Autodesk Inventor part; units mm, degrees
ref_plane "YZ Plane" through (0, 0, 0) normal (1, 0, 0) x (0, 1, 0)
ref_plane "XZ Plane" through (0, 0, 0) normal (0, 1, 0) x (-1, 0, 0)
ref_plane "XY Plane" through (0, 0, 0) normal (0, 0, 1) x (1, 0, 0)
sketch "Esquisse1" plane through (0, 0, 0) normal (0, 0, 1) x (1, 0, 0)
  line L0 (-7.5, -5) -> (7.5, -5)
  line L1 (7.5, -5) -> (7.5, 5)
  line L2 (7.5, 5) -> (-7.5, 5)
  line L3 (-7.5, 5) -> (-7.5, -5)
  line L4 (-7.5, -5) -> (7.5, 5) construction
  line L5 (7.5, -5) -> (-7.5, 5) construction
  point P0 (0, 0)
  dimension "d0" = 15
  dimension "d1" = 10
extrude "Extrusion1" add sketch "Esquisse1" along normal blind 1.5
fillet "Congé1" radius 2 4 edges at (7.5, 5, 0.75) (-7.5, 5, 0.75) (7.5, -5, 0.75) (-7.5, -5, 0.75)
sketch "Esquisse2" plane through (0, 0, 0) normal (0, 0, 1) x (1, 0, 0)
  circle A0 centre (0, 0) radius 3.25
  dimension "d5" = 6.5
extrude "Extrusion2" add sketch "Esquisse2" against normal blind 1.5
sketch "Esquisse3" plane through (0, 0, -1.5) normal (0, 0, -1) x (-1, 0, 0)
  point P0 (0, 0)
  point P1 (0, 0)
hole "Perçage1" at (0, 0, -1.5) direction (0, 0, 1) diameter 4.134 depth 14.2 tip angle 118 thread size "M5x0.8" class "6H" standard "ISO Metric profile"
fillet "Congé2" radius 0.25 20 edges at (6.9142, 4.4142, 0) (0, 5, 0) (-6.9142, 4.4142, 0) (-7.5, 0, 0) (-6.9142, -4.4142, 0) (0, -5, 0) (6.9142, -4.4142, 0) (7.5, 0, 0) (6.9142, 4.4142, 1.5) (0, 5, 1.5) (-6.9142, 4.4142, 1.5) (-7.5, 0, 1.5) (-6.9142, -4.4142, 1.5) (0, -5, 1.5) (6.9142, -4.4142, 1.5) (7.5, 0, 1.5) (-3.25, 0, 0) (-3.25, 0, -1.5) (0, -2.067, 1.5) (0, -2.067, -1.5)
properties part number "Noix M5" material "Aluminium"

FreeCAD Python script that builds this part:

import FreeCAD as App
import Part
import Sketcher

V = App.Vector
Q = App.Units.Quantity


def edges_at(feature, points):
    """Names of the edges that pass closest to the given points."""
    edges = feature.Shape.Edges
    near = lambda p: min(range(len(edges)), key=lambda i: edges[i].distToShape(Part.Vertex(*p))[0])
    return sorted({f"Edge{near(p) + 1}" for p in points})


def add_polygon(sketch, points):
    """Adds a closed chain of lines whose ends are joined by coincident constraints."""
    first, n = sketch.GeometryCount, len(points)
    for a, b in zip(points, points[1:] + points[:1]):
        sketch.addGeometry(Part.LineSegment(App.Vector(*a, 0), App.Vector(*b, 0)), False)
    for i in range(n):
        sketch.addConstraint(Sketcher.Constraint("Coincident", first + i, 2, first + (i + 1) % n, 1))

doc = App.newDocument("Part")
body = doc.addObject("PartDesign::Body", "Body")

sketch1 = body.newObject("Sketcher::SketchObject", "Sketch")
sketch1.AttachmentSupport = (doc.getObject("XY_Plane"), [""])
sketch1.MapMode = "FlatFace"
add_polygon(sketch1, [(-8, 5), (-8, -5), (8, -5), (8, 5)])
sketch1.addConstraint([
    Sketcher.Constraint("Vertical", 0),
    Sketcher.Constraint("Horizontal", 1),
    Sketcher.Constraint("Vertical", 2),
    Sketcher.Constraint("Horizontal", 3),
    Sketcher.Constraint("Symmetric", 0, 2, 2, 2, -1, 1),
    Sketcher.Constraint("DistanceX", 1, 1, 1, 2, Q("15 mm")),
    Sketcher.Constraint("DistanceY", 0, 2, 0, 1, Q("10 mm")),
])
pad1 = body.newObject("PartDesign::Pad", "Pad")
pad1.Profile = sketch1
pad1.Length = 1.5
doc.recompute()

fillet = body.newObject("PartDesign::Fillet", "Fillet")
fillet.Base = (pad1, edges_at(pad1, [
    (7.5, 5, 0.75),
    (-7.5, 5, 0.75),
    (7.5, -5, 0.75),
    (-7.5, -5, 0.75),
]))
fillet.Radius = 2

sketch2 = body.newObject("Sketcher::SketchObject", "Sketch001")
sketch2.AttachmentSupport = (doc.getObject("XY_Plane"), [""])
sketch2.MapMode = "FlatFace"
sketch2.addGeometry(Part.Circle(V(0, 0, 0), V(0, 0, 1), 3.2), False)
sketch2.addConstraint([
    Sketcher.Constraint("Coincident", 0, 3, -1, 1),
    Sketcher.Constraint("Diameter", 0, Q("6.5 mm")),
])
pad2 = body.newObject("PartDesign::Pad", "Pad001")
pad2.Profile = sketch2
pad2.Length = 1.5
pad2.Reversed = True

sketch3 = body.newObject("Sketcher::SketchObject", "Sketch002")
sketch3.AttachmentSupport = (doc.getObject("XY_Plane"), [""])
sketch3.MapMode = "FlatFace"
sketch3.AttachmentOffset = App.Placement(V(0, 0, -1.5), App.Rotation())
sketch3.addGeometry(Part.Circle(V(0, 0, 0), V(0, 0, 1), 2.1), False)
sketch3.addConstraint([
    Sketcher.Constraint("Coincident", 0, 3, -1, 1),
    Sketcher.Constraint("Diameter", 0, Q("4.134 mm")),
])
doc.recompute()
hole = body.newObject("PartDesign::Hole", "Hole")
hole.Profile = sketch3
hole.ThreadType = "None"
hole.Diameter = 4.134
hole.DepthType = "Dimension"
hole.Depth = 14.2
hole.DrillPoint = "Angled"
hole.DrillPointAngle = 118
hole.Reversed = True
doc.recompute()

fillet2 = body.newObject("PartDesign::Fillet", "Fillet001")
fillet2.Base = (hole, edges_at(hole, [
    (6.914, 4.414, 0),
    (0, 5, 0),
    (-6.914, 4.414, 0),
    (-7.5, 0, 0),
    (-6.914, -4.414, 0),
    (0, -5, 0),
    (6.914, -4.414, 0),
    (7.5, 0, 0),
    (6.914, 4.414, 1.5),
    (0, 5, 1.5),
    (-6.914, 4.414, 1.5),
    (-7.5, 0, 1.5),
    (-6.914, -4.414, 1.5),
    (0, -5, 1.5),
    (6.914, -4.414, 1.5),
    (7.5, 0, 1.5),
    (-3.25, 0, 0),
    (-3.25, 0, -1.5),
    (0, -2.067, 1.5),
    (0, -2.067, -1.5),
]))
fillet2.Radius = 0.25

doc.recompute()
